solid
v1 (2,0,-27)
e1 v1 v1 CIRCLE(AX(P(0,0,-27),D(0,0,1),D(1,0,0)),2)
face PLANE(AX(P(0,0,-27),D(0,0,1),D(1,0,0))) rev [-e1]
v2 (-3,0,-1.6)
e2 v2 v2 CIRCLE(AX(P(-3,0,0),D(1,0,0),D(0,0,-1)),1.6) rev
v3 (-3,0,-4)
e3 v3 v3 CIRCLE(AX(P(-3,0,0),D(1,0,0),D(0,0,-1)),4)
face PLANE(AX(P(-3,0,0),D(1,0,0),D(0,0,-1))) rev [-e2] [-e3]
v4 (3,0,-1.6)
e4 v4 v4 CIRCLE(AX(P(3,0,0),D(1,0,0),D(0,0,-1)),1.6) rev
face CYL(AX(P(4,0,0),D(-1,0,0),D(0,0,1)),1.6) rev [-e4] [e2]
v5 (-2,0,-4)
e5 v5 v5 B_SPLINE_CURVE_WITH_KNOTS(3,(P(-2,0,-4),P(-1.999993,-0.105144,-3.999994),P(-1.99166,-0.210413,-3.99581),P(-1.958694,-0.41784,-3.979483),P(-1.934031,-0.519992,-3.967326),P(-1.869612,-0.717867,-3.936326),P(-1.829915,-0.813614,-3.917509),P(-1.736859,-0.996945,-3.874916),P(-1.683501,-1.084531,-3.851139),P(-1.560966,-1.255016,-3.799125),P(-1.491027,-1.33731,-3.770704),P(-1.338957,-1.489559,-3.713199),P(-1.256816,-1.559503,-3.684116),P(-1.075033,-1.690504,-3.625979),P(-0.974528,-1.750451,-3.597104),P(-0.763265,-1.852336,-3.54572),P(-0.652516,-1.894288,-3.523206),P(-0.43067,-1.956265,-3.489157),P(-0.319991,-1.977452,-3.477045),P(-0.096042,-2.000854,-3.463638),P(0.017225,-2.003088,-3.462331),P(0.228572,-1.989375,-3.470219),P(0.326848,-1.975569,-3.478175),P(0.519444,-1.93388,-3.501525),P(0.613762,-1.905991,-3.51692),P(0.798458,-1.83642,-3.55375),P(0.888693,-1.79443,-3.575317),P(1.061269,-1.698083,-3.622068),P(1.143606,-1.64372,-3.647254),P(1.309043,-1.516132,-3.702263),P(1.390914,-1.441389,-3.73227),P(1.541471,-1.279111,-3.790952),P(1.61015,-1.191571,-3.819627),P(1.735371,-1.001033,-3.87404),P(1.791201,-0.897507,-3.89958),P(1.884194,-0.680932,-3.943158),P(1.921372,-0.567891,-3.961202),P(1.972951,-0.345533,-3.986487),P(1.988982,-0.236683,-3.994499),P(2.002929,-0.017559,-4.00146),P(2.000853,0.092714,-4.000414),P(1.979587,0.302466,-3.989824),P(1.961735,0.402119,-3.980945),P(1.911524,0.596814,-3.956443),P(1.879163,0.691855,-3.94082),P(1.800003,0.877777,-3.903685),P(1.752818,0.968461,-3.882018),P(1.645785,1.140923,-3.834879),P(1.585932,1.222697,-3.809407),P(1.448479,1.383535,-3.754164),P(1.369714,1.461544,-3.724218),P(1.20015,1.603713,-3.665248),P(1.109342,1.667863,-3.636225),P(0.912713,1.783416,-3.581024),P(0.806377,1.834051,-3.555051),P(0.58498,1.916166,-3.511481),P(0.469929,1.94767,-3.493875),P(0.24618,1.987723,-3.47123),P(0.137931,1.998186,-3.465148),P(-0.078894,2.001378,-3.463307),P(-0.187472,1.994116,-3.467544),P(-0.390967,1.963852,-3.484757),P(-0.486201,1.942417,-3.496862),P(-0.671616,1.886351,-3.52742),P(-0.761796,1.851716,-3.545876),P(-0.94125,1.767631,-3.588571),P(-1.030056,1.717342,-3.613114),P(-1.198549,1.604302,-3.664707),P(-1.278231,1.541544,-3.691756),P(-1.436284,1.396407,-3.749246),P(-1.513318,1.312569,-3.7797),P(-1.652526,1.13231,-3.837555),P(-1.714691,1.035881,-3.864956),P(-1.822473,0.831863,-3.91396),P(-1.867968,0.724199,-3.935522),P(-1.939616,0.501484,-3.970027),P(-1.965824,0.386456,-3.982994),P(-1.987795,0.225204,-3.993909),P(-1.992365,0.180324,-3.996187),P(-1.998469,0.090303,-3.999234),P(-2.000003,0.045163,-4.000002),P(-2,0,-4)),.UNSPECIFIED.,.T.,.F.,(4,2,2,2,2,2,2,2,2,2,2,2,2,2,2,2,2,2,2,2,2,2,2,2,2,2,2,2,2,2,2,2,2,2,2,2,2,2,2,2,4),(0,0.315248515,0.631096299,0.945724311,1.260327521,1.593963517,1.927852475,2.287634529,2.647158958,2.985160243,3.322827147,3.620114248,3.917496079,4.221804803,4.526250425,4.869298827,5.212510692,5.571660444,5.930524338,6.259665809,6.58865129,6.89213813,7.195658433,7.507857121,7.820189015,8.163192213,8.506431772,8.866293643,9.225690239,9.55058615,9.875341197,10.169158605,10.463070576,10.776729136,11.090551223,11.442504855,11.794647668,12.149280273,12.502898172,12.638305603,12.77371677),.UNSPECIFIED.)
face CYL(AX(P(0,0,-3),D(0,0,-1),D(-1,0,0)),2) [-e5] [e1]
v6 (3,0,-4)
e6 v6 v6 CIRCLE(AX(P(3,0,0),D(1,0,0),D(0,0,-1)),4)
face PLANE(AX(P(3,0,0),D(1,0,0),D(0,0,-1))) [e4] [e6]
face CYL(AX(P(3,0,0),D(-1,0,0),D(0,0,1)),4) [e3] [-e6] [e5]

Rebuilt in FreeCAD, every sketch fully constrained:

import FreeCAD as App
import Part
import Sketcher

V = App.Vector

doc = App.newDocument("Part")
body = doc.addObject("PartDesign::Body", "Body")

# Sketch on XY plane
sketch1 = body.newObject("Sketcher::SketchObject", "Sketch")
sketch1.AttachmentSupport = (doc.getObject("XY_Plane"), [""])
sketch1.MapMode = "FlatFace"
sketch1.addGeometry(Part.Circle(V(0, 0, 0), V(0, 0, 1), 2), False)
sketch1.addConstraint([
    Sketcher.Constraint("Coincident", 0, 3, -1, 1),
    Sketcher.Constraint("Diameter", 0, 4.0),
])
pad1 = body.newObject("PartDesign::Pad", "Pad")
pad1.Profile = sketch1
pad1.Length = 24
body2 = doc.addObject("PartDesign::Body", "Body001")
doc.recompute()

body.Placement = App.Placement(V(0, 0, -27), App.Rotation(V(0, 0, 1), 0))
boolean = body2.newObject("PartDesign::Boolean", "Boolean")
boolean.Type = "Fuse"
boolean.addObjects([body])
body3 = doc.addObject("PartDesign::Body", "Body002")

# Sketch on XY plane
sketch2 = body3.newObject("Sketcher::SketchObject", "Sketch001")
sketch2.AttachmentSupport = (doc.getObject("XY_Plane002"), [""])
sketch2.MapMode = "FlatFace"
sketch2.addGeometry(Part.Circle(V(0, 0, 0), V(0, 0, 1), 4), False)
sketch2.addConstraint([
    Sketcher.Constraint("Coincident", 0, 3, -1, 1),
    Sketcher.Constraint("Diameter", 0, 8.0),
])
pad2 = body3.newObject("PartDesign::Pad", "Pad001")
pad2.Profile = sketch2
pad2.Length = 6
body4 = doc.addObject("PartDesign::Body", "Body003")
doc.recompute()

body3.Placement = App.Placement(V(0, 0, 0), App.Rotation(V(0, 1, 0), 90))
boolean2 = body4.newObject("PartDesign::Boolean", "Boolean001")
boolean2.Type = "Fuse"
boolean2.addObjects([body3])
body5 = doc.addObject("PartDesign::Body", "Body004")
doc.recompute()

body4.Placement = App.Placement(V(-3, 0, 0), App.Rotation(V(0, 0, 1), 0))
boolean3 = body5.newObject("PartDesign::Boolean", "Boolean002")
boolean3.Type = "Fuse"
boolean3.addObjects([body4])
doc.recompute()

boolean4 = body2.newObject("PartDesign::Boolean", "Boolean003")
boolean4.Type = "Fuse"
boolean4.addObjects([body5])
body6 = doc.addObject("PartDesign::Body", "Body005")

# Sketch on XY plane
sketch3 = body6.newObject("Sketcher::SketchObject", "Sketch002")
sketch3.AttachmentSupport = (doc.getObject("XY_Plane005"), [""])
sketch3.MapMode = "FlatFace"
sketch3.addGeometry(Part.Circle(V(0, 0, 0), V(0, 0, 1), 1.6), False)
sketch3.addConstraint([
    Sketcher.Constraint("Coincident", 0, 3, -1, 1),
    Sketcher.Constraint("Diameter", 0, 3.2),
])
pad3 = body6.newObject("PartDesign::Pad", "Pad002")
pad3.Profile = sketch3
pad3.Length = 8
body7 = doc.addObject("PartDesign::Body", "Body006")
doc.recompute()

body6.Placement = App.Placement(V(0, 0, 0), App.Rotation(V(0, 1, 0), 90))
boolean5 = body7.newObject("PartDesign::Boolean", "Boolean004")
boolean5.Type = "Fuse"
boolean5.addObjects([body6])
body8 = doc.addObject("PartDesign::Body", "Body007")
doc.recompute()

body7.Placement = App.Placement(V(-4, 0, 0), App.Rotation(V(0, 0, 1), 0))
boolean6 = body8.newObject("PartDesign::Boolean", "Boolean005")
boolean6.Type = "Fuse"
boolean6.addObjects([body7])
doc.recompute()

boolean7 = body2.newObject("PartDesign::Boolean", "Boolean006")
boolean7.Type = "Cut"
boolean7.addObjects([body8])

doc.recompute()
